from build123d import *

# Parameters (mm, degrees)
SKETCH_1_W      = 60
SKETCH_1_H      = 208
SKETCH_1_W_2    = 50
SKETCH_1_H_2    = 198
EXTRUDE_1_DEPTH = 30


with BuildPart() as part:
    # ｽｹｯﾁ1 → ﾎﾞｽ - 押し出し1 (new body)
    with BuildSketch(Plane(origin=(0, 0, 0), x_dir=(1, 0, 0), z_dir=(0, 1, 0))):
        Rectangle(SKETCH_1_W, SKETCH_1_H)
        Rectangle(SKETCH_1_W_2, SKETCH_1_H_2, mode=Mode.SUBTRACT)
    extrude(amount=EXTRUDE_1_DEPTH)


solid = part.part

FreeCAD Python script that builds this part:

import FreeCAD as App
import Part
import Sketcher
from FreeCAD import Vector


def add_polygon(sketch, points):
    """Adds a closed chain of lines whose ends are joined by coincident constraints."""
    first, n = sketch.GeometryCount, len(points)
    for a, b in zip(points, points[1:] + points[:1]):
        sketch.addGeometry(Part.LineSegment(App.Vector(*a, 0), App.Vector(*b, 0)), False)
    for i in range(n):
        sketch.addConstraint(Sketcher.Constraint("Coincident", first + i, 2, first + (i + 1) % n, 1))

doc = App.newDocument("Part")
body = doc.addObject("PartDesign::Body", "Body")

# Sketch on XZ plane
sketch1 = body.newObject("Sketcher::SketchObject", "Sketch")
sketch1.AttachmentSupport = (doc.getObject("XZ_Plane"), [""])
sketch1.MapMode = "FlatFace"
add_polygon(sketch1, [(-30, -104), (-30, 104), (30, 104), (30, -104)])  # lines 0-3
add_polygon(sketch1, [(25, 99), (-25, 99), (-25, -99), (25, -99)])  # lines 4-7
sketch1.addConstraint(Sketcher.Constraint("Vertical", 0))
sketch1.addConstraint(Sketcher.Constraint("Horizontal", 1))
sketch1.addConstraint(Sketcher.Constraint("Vertical", 2))
sketch1.addConstraint(Sketcher.Constraint("Horizontal", 3))
sketch1.addConstraint(Sketcher.Constraint("Horizontal", 4))
sketch1.addConstraint(Sketcher.Constraint("Vertical", 5))
sketch1.addConstraint(Sketcher.Constraint("Horizontal", 6))
sketch1.addConstraint(Sketcher.Constraint("Vertical", 7))
sketch1.addConstraint(Sketcher.Constraint("Symmetric", 0, 2, 2, 2, -1, 1))
sketch1.addConstraint(Sketcher.Constraint("Symmetric", 4, 2, 6, 2, -1, 1))
sketch1.addConstraint(Sketcher.Constraint("DistanceX", 1, 1, 1, 2, 60.0))
sketch1.addConstraint(Sketcher.Constraint("DistanceX", 4, 2, 4, 1, 50.0))
sketch1.addConstraint(Sketcher.Constraint("DistanceY", 0, 1, 0, 2, 208.0))
sketch1.addConstraint(Sketcher.Constraint("DistanceY", 5, 2, 5, 1, 198.0))
pad1 = body.newObject("PartDesign::Pad", "Pad")
pad1.Profile = sketch1
pad1.Length = 30
pad1.Reversed = True

doc.recompute()
